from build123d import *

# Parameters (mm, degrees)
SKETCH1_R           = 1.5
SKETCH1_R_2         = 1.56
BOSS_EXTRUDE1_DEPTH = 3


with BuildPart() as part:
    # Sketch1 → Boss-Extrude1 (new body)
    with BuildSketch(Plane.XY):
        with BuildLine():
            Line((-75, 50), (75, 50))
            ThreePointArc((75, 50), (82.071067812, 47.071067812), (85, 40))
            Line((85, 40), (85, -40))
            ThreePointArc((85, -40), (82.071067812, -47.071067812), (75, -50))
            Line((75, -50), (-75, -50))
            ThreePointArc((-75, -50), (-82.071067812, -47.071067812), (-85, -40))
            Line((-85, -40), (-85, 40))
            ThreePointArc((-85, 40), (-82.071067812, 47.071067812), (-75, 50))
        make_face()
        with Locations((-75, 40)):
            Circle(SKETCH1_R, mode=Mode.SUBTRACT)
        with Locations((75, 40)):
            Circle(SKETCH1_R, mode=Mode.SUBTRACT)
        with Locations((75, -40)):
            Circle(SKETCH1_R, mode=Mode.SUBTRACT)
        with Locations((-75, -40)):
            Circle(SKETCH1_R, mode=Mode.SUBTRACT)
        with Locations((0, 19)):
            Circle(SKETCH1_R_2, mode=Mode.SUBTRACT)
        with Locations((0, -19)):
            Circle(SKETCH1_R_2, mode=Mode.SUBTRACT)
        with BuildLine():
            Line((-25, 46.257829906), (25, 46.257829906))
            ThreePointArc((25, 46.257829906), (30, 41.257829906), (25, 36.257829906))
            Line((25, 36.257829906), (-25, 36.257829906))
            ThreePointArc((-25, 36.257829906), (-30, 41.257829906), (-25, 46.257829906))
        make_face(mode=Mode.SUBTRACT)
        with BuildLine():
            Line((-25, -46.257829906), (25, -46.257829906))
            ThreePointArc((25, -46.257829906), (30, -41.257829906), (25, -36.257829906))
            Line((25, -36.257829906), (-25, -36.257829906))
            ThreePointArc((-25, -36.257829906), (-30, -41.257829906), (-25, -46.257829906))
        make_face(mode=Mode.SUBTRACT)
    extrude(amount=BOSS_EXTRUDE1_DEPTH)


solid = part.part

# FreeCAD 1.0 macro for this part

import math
import FreeCAD as App
import Part
import Sketcher
from FreeCAD import Vector

doc = App.newDocument("Part")
params = doc.addObject("Spreadsheet::Sheet", "Params")
for row, (alias, value) in enumerate([
    ("sketch1_diameter", "3 mm"),
    ("sketch1_radius", "10 mm"),
    ("sketch1_radius2", "5 mm"),
    ("sketch1_diameter2", "3.12 mm"),
    ("sketch1_width", "150 mm"),
    ("pad1_length", "3 mm"),
], start=1):
    params.set(f"A{row}", alias)
    params.set(f"B{row}", "=" + value)
    params.setAlias(f"B{row}", alias)

body = doc.addObject("PartDesign::Body", "Body")

sketch1 = body.newObject("Sketcher::SketchObject", "Sketch")
sketch1.AttachmentSupport = (doc.getObject("XY_Plane"), [""])
sketch1.MapMode = "FlatFace"
sketch1.addGeometry([
    Part.LineSegment(Vector(75, 50, 0), Vector(-75, 50, 0)),
    Part.ArcOfCircle(Part.Circle(Vector(-75, 40, 0), Vector(0, 0, 1), 10), math.radians(90), math.radians(180)),
    Part.LineSegment(Vector(-85, 40, 0), Vector(-85, -40, 0)),
    Part.ArcOfCircle(Part.Circle(Vector(-75, -40, 0), Vector(0, 0, 1), 10), math.radians(180), math.radians(270)),
    Part.LineSegment(Vector(-75, -50, 0), Vector(75, -50, 0)),
    Part.ArcOfCircle(Part.Circle(Vector(75, -40, 0), Vector(0, 0, 1), 10), math.radians(-90), math.radians(0)),
    Part.LineSegment(Vector(85, -40, 0), Vector(85, 40, 0)),
    Part.ArcOfCircle(Part.Circle(Vector(75, 40, 0), Vector(0, 0, 1), 10), math.radians(0), math.radians(90)),
    Part.Circle(Vector(75, -40, 0), Vector(0, 0, 1), 1.5),
    Part.ArcOfCircle(Part.Circle(Vector(-25, -41.25783, 0), Vector(0, 0, 1), 5), math.radians(90), math.radians(270)),
    Part.LineSegment(Vector(-25, -36.25783, 0), Vector(25, -36.25783, 0)),
    Part.ArcOfCircle(Part.Circle(Vector(25, -41.25783, 0), Vector(0, 0, 1), 5), math.radians(-90), math.radians(90)),
    Part.LineSegment(Vector(25, -46.25783, 0), Vector(-25, -46.25783, 0)),
    Part.Circle(Vector(-75, -40, 0), Vector(0, 0, 1), 1.5),
    Part.Circle(Vector(0, -19, 0), Vector(0, 0, 1), 1.56),
    Part.Circle(Vector(75, 40, 0), Vector(0, 0, 1), 1.5),
    Part.Circle(Vector(0, 19, 0), Vector(0, 0, 1), 1.56),
    Part.LineSegment(Vector(-25, 46.25783, 0), Vector(25, 46.25783, 0)),
    Part.ArcOfCircle(Part.Circle(Vector(25, 41.25783, 0), Vector(0, 0, 1), 5), math.radians(-90), math.radians(90)),
    Part.LineSegment(Vector(25, 36.25783, 0), Vector(-25, 36.25783, 0)),
    Part.ArcOfCircle(Part.Circle(Vector(-25, 41.25783, 0), Vector(0, 0, 1), 5), math.radians(90), math.radians(270)),
    Part.Circle(Vector(-75, 40, 0), Vector(0, 0, 1), 1.5),
], False)
sketch1.addConstraint([
    Sketcher.Constraint("Tangent", 0, 2, 1, 1),
    Sketcher.Constraint("Tangent", 1, 2, 2, 1),
    Sketcher.Constraint("Tangent", 2, 2, 3, 1),
    Sketcher.Constraint("Tangent", 3, 2, 4, 1),
    Sketcher.Constraint("Tangent", 4, 2, 5, 1),
    Sketcher.Constraint("Tangent", 5, 2, 6, 1),
    Sketcher.Constraint("Tangent", 6, 2, 7, 1),
    Sketcher.Constraint("Tangent", 7, 2, 0, 1),
    Sketcher.Constraint("Tangent", 9, 1, 10, 1),
    Sketcher.Constraint("Tangent", 10, 2, 11, 2),
    Sketcher.Constraint("Tangent", 11, 1, 12, 1),
    Sketcher.Constraint("Tangent", 12, 2, 9, 2),
    Sketcher.Constraint("Tangent", 17, 2, 18, 2),
    Sketcher.Constraint("Tangent", 18, 1, 19, 1),
    Sketcher.Constraint("Tangent", 19, 2, 20, 2),
    Sketcher.Constraint("Tangent", 20, 1, 17, 1),
    Sketcher.Constraint("Horizontal", 0),
    Sketcher.Constraint("Vertical", 2),
    Sketcher.Constraint("Horizontal", 4),
    Sketcher.Constraint("Vertical", 6),
    Sketcher.Constraint("Horizontal", 10),
    Sketcher.Constraint("Horizontal", 12),
    Sketcher.Constraint("Horizontal", 17),
    Sketcher.Constraint("Horizontal", 19),
    Sketcher.Constraint("Coincident", 8, 3, 5, 3),
    Sketcher.Constraint("Coincident", 13, 3, 3, 3),
    Sketcher.Constraint("Coincident", 15, 3, 7, 3),
    Sketcher.Constraint("Coincident", 21, 3, 1, 3),
    Sketcher.Constraint("Equal", 1, 3),
    Sketcher.Constraint("Equal", 3, 5),
    Sketcher.Constraint("Equal", 5, 7),
    Sketcher.Constraint("Equal", 8, 13),
    Sketcher.Constraint("Equal", 13, 15),
    Sketcher.Constraint("Equal", 14, 16),
    Sketcher.Constraint("Equal", 11, 18),
    Sketcher.Constraint("Equal", 15, 21),
    Sketcher.Constraint("Symmetric", 1, 3, 5, 3, -1, 1),
    Sketcher.Constraint("Symmetric", 14, 3, 16, 3, -1, 1),
    Sketcher.Constraint("Symmetric", 9, 3, 18, 3, -1, 1),
    Sketcher.Constraint("PointOnObject", 14, 3, -2),
    Sketcher.Constraint("Vertical", 11, 3, 18, 3),
    Sketcher.Constraint("Vertical", 9, 3, 20, 3),
    Sketcher.Constraint("Diameter", 8, 3.0),
    Sketcher.Constraint("Radius", 1, 10.0),
    Sketcher.Constraint("Radius", 9, 5.0),
    Sketcher.Constraint("Diameter", 14, 3.12),
    Sketcher.Constraint("DistanceX", 0, 2, 0, 1, 150.0),
    Sketcher.Constraint("DistanceX", 10, 1, 10, 2, 50.0),
    Sketcher.Constraint("DistanceY", 2, 2, 2, 1, 80.0),
    Sketcher.Constraint("DistanceY", 14, 3, -1, 1, 19.0),
    Sketcher.Constraint("DistanceY", 9, 3, -1, 1, 41.25783),
])
sketch1.setExpression("Constraints[42]", "Params.sketch1_diameter")
sketch1.setExpression("Constraints[43]", "Params.sketch1_radius")
sketch1.setExpression("Constraints[44]", "Params.sketch1_radius2")
sketch1.setExpression("Constraints[45]", "Params.sketch1_diameter2")
sketch1.setExpression("Constraints[46]", "Params.sketch1_width")
pad1 = body.newObject("PartDesign::Pad", "Pad")
pad1.Profile = sketch1
pad1.setExpression("Length", "Params.pad1_length")

doc.recompute()
